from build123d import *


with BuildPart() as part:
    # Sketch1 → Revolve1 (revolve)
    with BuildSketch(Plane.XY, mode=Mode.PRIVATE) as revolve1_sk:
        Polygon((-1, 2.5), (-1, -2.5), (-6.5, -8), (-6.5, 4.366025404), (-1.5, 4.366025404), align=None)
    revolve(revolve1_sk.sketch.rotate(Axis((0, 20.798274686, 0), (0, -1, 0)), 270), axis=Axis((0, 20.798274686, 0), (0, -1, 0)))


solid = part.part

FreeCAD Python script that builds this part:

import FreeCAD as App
import Part
import Sketcher

V = App.Vector
Q = App.Units.Quantity


def add_polygon(sketch, points):
    """Adds a closed chain of lines whose ends are joined by coincident constraints."""
    first, n = sketch.GeometryCount, len(points)
    for a, b in zip(points, points[1:] + points[:1]):
        sketch.addGeometry(Part.LineSegment(App.Vector(*a, 0), App.Vector(*b, 0)), False)
    for i in range(n):
        sketch.addConstraint(Sketcher.Constraint("Coincident", first + i, 2, first + (i + 1) % n, 1))

doc = App.newDocument("Part")
body = doc.addObject("PartDesign::Body", "Body")

sketch1 = doc.addObject("Sketcher::SketchObject", "Sketch")
body.addObject(sketch1)
sketch1.AttachmentSupport = (doc.XY_Plane, [""])
sketch1.MapMode = "FlatFace"
add_polygon(sketch1, [(-1, -2.5), (-1, 2.5), (-1.5, 4.366025), (-6.5, 4.366025), (-6.5, -8)])
sketch1.addConstraint(Sketcher.Constraint("Vertical", 0))
sketch1.addConstraint(Sketcher.Constraint("Horizontal", 2))
sketch1.addConstraint(Sketcher.Constraint("Vertical", 3))
sketch1.addConstraint(Sketcher.Constraint("Equal", 2, 0))
sketch1.addConstraint(Sketcher.Constraint("DistanceX", 2, 2, 2, 1, Q("5 mm")))
sketch1.addConstraint(Sketcher.Constraint("Angle", 1, Q("105 deg")))
sketch1.addConstraint(Sketcher.Constraint("Angle", 4, Q("45 deg")))
sketch1.addConstraint(Sketcher.Constraint("DistanceX", 0, 2, -1, 1, Q("1 mm")))
sketch1.addConstraint(Sketcher.Constraint("DistanceY", 3, 2, -1, 1, Q("8 mm")))
sketch1.addConstraint(Sketcher.Constraint("DistanceY", -1, 1, 0, 2, Q("2.5 mm")))
revolution = doc.addObject("PartDesign::Revolution", "Revolution")
body.addObject(revolution)
revolution.Profile = sketch1
revolution.ReferenceAxis = (sketch1, ["V_Axis"])
revolution.Angle = 360

doc.recompute()
